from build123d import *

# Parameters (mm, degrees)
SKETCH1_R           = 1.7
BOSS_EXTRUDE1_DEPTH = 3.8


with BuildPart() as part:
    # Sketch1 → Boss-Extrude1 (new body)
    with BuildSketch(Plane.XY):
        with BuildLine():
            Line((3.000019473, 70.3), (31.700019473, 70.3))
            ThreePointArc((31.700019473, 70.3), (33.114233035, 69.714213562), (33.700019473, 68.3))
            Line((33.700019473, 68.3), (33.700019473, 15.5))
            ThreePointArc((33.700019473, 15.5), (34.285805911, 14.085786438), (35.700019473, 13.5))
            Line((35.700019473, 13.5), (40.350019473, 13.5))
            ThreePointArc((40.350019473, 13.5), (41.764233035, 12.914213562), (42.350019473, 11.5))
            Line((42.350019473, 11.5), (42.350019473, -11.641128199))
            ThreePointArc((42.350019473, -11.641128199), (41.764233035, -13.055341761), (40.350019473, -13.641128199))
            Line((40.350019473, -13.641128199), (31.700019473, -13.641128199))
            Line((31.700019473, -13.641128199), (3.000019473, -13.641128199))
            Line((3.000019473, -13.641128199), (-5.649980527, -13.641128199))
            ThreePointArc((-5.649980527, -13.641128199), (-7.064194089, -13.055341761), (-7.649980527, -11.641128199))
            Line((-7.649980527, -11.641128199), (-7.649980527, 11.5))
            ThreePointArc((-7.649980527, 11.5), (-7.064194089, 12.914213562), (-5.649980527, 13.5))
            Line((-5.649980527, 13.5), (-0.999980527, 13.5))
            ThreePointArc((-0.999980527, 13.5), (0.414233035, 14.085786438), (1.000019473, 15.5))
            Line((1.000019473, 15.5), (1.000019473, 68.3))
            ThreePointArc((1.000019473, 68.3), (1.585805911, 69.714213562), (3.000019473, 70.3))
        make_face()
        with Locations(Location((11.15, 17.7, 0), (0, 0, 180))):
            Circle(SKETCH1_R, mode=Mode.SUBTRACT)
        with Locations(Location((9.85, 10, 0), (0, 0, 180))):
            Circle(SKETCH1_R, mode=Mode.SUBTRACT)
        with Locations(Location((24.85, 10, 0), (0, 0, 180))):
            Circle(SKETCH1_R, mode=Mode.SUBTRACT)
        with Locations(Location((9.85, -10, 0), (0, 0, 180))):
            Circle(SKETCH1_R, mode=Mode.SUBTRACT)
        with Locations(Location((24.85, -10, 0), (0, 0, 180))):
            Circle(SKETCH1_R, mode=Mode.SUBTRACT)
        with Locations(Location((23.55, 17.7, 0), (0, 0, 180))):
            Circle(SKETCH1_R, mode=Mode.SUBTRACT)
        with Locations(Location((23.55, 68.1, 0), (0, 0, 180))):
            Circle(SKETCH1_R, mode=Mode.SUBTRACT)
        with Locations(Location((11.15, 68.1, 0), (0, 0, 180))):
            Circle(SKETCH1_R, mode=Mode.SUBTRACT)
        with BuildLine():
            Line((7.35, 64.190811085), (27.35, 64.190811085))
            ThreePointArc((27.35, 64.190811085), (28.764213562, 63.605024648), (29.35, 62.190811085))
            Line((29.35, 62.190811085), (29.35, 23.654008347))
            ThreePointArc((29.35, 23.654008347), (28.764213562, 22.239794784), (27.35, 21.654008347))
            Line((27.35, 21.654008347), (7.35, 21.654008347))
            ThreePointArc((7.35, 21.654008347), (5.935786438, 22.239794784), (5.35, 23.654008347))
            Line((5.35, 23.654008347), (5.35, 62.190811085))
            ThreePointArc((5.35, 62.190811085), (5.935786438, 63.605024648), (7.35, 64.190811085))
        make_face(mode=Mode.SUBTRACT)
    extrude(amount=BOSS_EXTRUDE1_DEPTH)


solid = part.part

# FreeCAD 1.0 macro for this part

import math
import FreeCAD as App
import Part
import Sketcher
from FreeCAD import Vector

doc = App.newDocument("Part")
body = doc.addObject("PartDesign::Body", "Body")

# Sketch on XY plane
sketch1 = body.newObject("Sketcher::SketchObject", "Sketch")
sketch1.AttachmentSupport = (doc.getObject("XY_Plane"), [""])
sketch1.MapMode = "FlatFace"
sketch1.addGeometry(Part.LineSegment(Vector(31.7, 70.3, 0), Vector(3, 70.3, 0)), False)
sketch1.addGeometry(Part.ArcOfCircle(Part.Circle(Vector(3, 68.3, 0), Vector(0, 0, 1), 2), math.radians(90), math.radians(180)), False)
sketch1.addGeometry(Part.LineSegment(Vector(1, 68.3, 0), Vector(1, 15.5, 0)), False)
sketch1.addGeometry(Part.ArcOfCircle(Part.Circle(Vector(-1, 15.5, 0), Vector(0, 0, 1), 2), math.radians(-90), math.radians(0)), False)
sketch1.addGeometry(Part.LineSegment(Vector(-1, 13.5, 0), Vector(-5.6, 13.5, 0)), False)
sketch1.addGeometry(Part.ArcOfCircle(Part.Circle(Vector(-5.6, 11.5, 0), Vector(0, 0, 1), 2), math.radians(90), math.radians(180)), False)
sketch1.addGeometry(Part.LineSegment(Vector(-7.6, 11.5, 0), Vector(-7.6, -11.6, 0)), False)
sketch1.addGeometry(Part.ArcOfCircle(Part.Circle(Vector(-5.6, -11.6, 0), Vector(0, 0, 1), 2), math.radians(-180), math.radians(-90)), False)
sketch1.addGeometry(Part.LineSegment(Vector(-5.6, -13.6, 0), Vector(40.4, -13.6, 0)), False)
sketch1.addGeometry(Part.ArcOfCircle(Part.Circle(Vector(40.4, -11.6, 0), Vector(0, 0, 1), 2), math.radians(-90), math.radians(0)), False)
sketch1.addGeometry(Part.LineSegment(Vector(42.4, -11.6, 0), Vector(42.4, 11.5, 0)), False)
sketch1.addGeometry(Part.ArcOfCircle(Part.Circle(Vector(40.4, 11.5, 0), Vector(0, 0, 1), 2), math.radians(0), math.radians(90)), False)
sketch1.addGeometry(Part.LineSegment(Vector(40.4, 13.5, 0), Vector(35.7, 13.5, 0)), False)
sketch1.addGeometry(Part.ArcOfCircle(Part.Circle(Vector(35.7, 15.5, 0), Vector(0, 0, 1), 2), math.radians(-180), math.radians(-90)), False)
sketch1.addGeometry(Part.LineSegment(Vector(33.7, 15.5, 0), Vector(33.7, 68.3, 0)), False)
sketch1.addGeometry(Part.ArcOfCircle(Part.Circle(Vector(31.7, 68.3, 0), Vector(0, 0, 1), 2), math.radians(0), math.radians(90)), False)
sketch1.addGeometry(Part.Circle(Vector(24.9, -10, 0), Vector(0, 0, 1), 1.7), False)
sketch1.addGeometry(Part.Circle(Vector(24.9, 10, 0), Vector(0, 0, 1), 1.7), False)
sketch1.addGeometry(Part.Circle(Vector(23.6, 17.7, 0), Vector(0, 0, 1), 1.7), False)
sketch1.addGeometry(Part.Circle(Vector(9.8, -10, 0), Vector(0, 0, 1), 1.7), False)
sketch1.addGeometry(Part.Circle(Vector(9.8, 10, 0), Vector(0, 0, 1), 1.7), False)
sketch1.addGeometry(Part.Circle(Vector(11.2, 17.7, 0), Vector(0, 0, 1), 1.7), False)
sketch1.addGeometry(Part.Circle(Vector(23.6, 68.1, 0), Vector(0, 0, 1), 1.7), False)
sketch1.addGeometry(Part.LineSegment(Vector(7.3, 64.2, 0), Vector(27.4, 64.2, 0)), False)
sketch1.addGeometry(Part.ArcOfCircle(Part.Circle(Vector(27.4, 62.2, 0), Vector(0, 0, 1), 2), math.radians(0), math.radians(90)), False)
sketch1.addGeometry(Part.LineSegment(Vector(29.4, 62.2, 0), Vector(29.4, 23.7, 0)), False)
sketch1.addGeometry(Part.ArcOfCircle(Part.Circle(Vector(27.4, 23.7, 0), Vector(0, 0, 1), 2), math.radians(-90), math.radians(0)), False)
sketch1.addGeometry(Part.LineSegment(Vector(27.4, 21.7, 0), Vector(7.3, 21.7, 0)), False)
sketch1.addGeometry(Part.ArcOfCircle(Part.Circle(Vector(7.3, 23.7, 0), Vector(0, 0, 1), 2), math.radians(180), math.radians(270)), False)
sketch1.addGeometry(Part.LineSegment(Vector(5.3, 23.7, 0), Vector(5.3, 62.2, 0)), False)
sketch1.addGeometry(Part.ArcOfCircle(Part.Circle(Vector(7.3, 62.2, 0), Vector(0, 0, 1), 2), math.radians(90), math.radians(180)), False)
sketch1.addGeometry(Part.Circle(Vector(11.2, 68.1, 0), Vector(0, 0, 1), 1.7), False)
sketch1.addConstraint(Sketcher.Constraint("Tangent", 0, 2, 1, 1))
sketch1.addConstraint(Sketcher.Constraint("Tangent", 1, 2, 2, 1))
sketch1.addConstraint(Sketcher.Constraint("Tangent", 2, 2, 3, 2))
sketch1.addConstraint(Sketcher.Constraint("Tangent", 3, 1, 4, 1))
sketch1.addConstraint(Sketcher.Constraint("Tangent", 4, 2, 5, 1))
sketch1.addConstraint(Sketcher.Constraint("Tangent", 5, 2, 6, 1))
sketch1.addConstraint(Sketcher.Constraint("Tangent", 6, 2, 7, 1))
sketch1.addConstraint(Sketcher.Constraint("Tangent", 7, 2, 8, 1))
sketch1.addConstraint(Sketcher.Constraint("Tangent", 8, 2, 9, 1))
sketch1.addConstraint(Sketcher.Constraint("Tangent", 9, 2, 10, 1))
sketch1.addConstraint(Sketcher.Constraint("Tangent", 10, 2, 11, 1))
sketch1.addConstraint(Sketcher.Constraint("Tangent", 11, 2, 12, 1))
sketch1.addConstraint(Sketcher.Constraint("Tangent", 12, 2, 13, 2))
sketch1.addConstraint(Sketcher.Constraint("Tangent", 13, 1, 14, 1))
sketch1.addConstraint(Sketcher.Constraint("Tangent", 14, 2, 15, 1))
sketch1.addConstraint(Sketcher.Constraint("Tangent", 15, 2, 0, 1))
sketch1.addConstraint(Sketcher.Constraint("Tangent", 23, 2, 24, 2))
sketch1.addConstraint(Sketcher.Constraint("Tangent", 24, 1, 25, 1))
sketch1.addConstraint(Sketcher.Constraint("Tangent", 25, 2, 26, 2))
sketch1.addConstraint(Sketcher.Constraint("Tangent", 26, 1, 27, 1))
sketch1.addConstraint(Sketcher.Constraint("Tangent", 27, 2, 28, 2))
sketch1.addConstraint(Sketcher.Constraint("Tangent", 28, 1, 29, 1))
sketch1.addConstraint(Sketcher.Constraint("Tangent", 29, 2, 30, 2))
sketch1.addConstraint(Sketcher.Constraint("Tangent", 30, 1, 23, 1))
sketch1.addConstraint(Sketcher.Constraint("Horizontal", 0))
sketch1.addConstraint(Sketcher.Constraint("Vertical", 2))
sketch1.addConstraint(Sketcher.Constraint("Horizontal", 4))
sketch1.addConstraint(Sketcher.Constraint("Vertical", 6))
sketch1.addConstraint(Sketcher.Constraint("Horizontal", 8))
sketch1.addConstraint(Sketcher.Constraint("Vertical", 10))
sketch1.addConstraint(Sketcher.Constraint("Horizontal", 12))
sketch1.addConstraint(Sketcher.Constraint("Vertical", 14))
sketch1.addConstraint(Sketcher.Constraint("Horizontal", 23))
sketch1.addConstraint(Sketcher.Constraint("Vertical", 25))
sketch1.addConstraint(Sketcher.Constraint("Horizontal", 27))
sketch1.addConstraint(Sketcher.Constraint("Vertical", 29))
sketch1.addConstraint(Sketcher.Constraint("Equal", 1, 3))
sketch1.addConstraint(Sketcher.Constraint("Equal", 3, 5))
sketch1.addConstraint(Sketcher.Constraint("Equal", 5, 7))
sketch1.addConstraint(Sketcher.Constraint("Equal", 7, 9))
sketch1.addConstraint(Sketcher.Constraint("Equal", 9, 11))
sketch1.addConstraint(Sketcher.Constraint("Equal", 11, 13))
sketch1.addConstraint(Sketcher.Constraint("Equal", 13, 15))
sketch1.addConstraint(Sketcher.Constraint("Equal", 16, 17))
sketch1.addConstraint(Sketcher.Constraint("Equal", 17, 18))
sketch1.addConstraint(Sketcher.Constraint("Equal", 18, 19))
sketch1.addConstraint(Sketcher.Constraint("Equal", 19, 20))
sketch1.addConstraint(Sketcher.Constraint("Equal", 20, 21))
sketch1.addConstraint(Sketcher.Constraint("Equal", 21, 22))
sketch1.addConstraint(Sketcher.Constraint("Equal", 15, 24))
sketch1.addConstraint(Sketcher.Constraint("Equal", 24, 26))
sketch1.addConstraint(Sketcher.Constraint("Equal", 26, 28))
sketch1.addConstraint(Sketcher.Constraint("Equal", 28, 30))
sketch1.addConstraint(Sketcher.Constraint("Equal", 22, 31))
sketch1.addConstraint(Sketcher.Constraint("Symmetric", 16, 3, 17, 3, -1))
sketch1.addConstraint(Sketcher.Constraint("Symmetric", 19, 3, 20, 3, -1))
sketch1.addConstraint(Sketcher.Constraint("Horizontal", 5, 3, 11, 3))
sketch1.addConstraint(Sketcher.Constraint("Horizontal", 16, 3, 19, 3))
sketch1.addConstraint(Sketcher.Constraint("Horizontal", 18, 3, 21, 3))
sketch1.addConstraint(Sketcher.Constraint("Horizontal", 22, 3, 31, 3))
sketch1.addConstraint(Sketcher.Constraint("Vertical", 18, 3, 22, 3))
sketch1.addConstraint(Sketcher.Constraint("Vertical", 21, 3, 31, 3))
sketch1.addConstraint(Sketcher.Constraint("Equal", 4, 12))
sketch1.addConstraint(Sketcher.Constraint("Radius", 1, 2.0))
sketch1.addConstraint(Sketcher.Constraint("Diameter", 16, 3.4))
sketch1.addConstraint(Sketcher.Constraint("DistanceX", 8, 1, 8, 2, 46.0))
sketch1.addConstraint(Sketcher.Constraint("DistanceX", 23, 1, 23, 2, 20.0))
sketch1.addConstraint(Sketcher.Constraint("DistanceX", 0, 2, 0, 1, 28.7))
sketch1.addConstraint(Sketcher.Constraint("DistanceY", 2, 2, 2, 1, 52.8))
sketch1.addConstraint(Sketcher.Constraint("DistanceY", 16, 3, -1, 1, 10.0))
sketch1.addConstraint(Sketcher.Constraint("DistanceX", 19, 3, 16, 3, 15.0))
sketch1.addConstraint(Sketcher.Constraint("DistanceY", -1, 1, 1, 3, 68.3))
sketch1.addConstraint(Sketcher.Constraint("DistanceY", -1, 1, 18, 3, 17.7))
sketch1.addConstraint(Sketcher.Constraint("DistanceY", -1, 1, 22, 3, 68.1))
sketch1.addConstraint(Sketcher.Constraint("DistanceX", 18, 3, 17, 3, 1.3))
sketch1.addConstraint(Sketcher.Constraint("DistanceX", 20, 3, 21, 3, 1.3))
sketch1.addConstraint(Sketcher.Constraint("DistanceX", 22, 3, 24, 3, 3.8))
sketch1.addConstraint(Sketcher.Constraint("DistanceX", -1, 1, 16, 3, 24.85))
sketch1.addConstraint(Sketcher.Constraint("DistanceY", 6, 2, 6, 1, 23.141128))
sketch1.addConstraint(Sketcher.Constraint("DistanceY", 25, 2, 25, 1, 38.536803))
sketch1.addConstraint(Sketcher.Constraint("DistanceX", -1, 1, 1, 3, 3.000019))
sketch1.addConstraint(Sketcher.Constraint("DistanceY", -1, 1, 24, 3, 62.190811))
pad1 = body.newObject("PartDesign::Pad", "Pad")
pad1.Profile = sketch1
pad1.Length = 3.8

doc.recompute()
